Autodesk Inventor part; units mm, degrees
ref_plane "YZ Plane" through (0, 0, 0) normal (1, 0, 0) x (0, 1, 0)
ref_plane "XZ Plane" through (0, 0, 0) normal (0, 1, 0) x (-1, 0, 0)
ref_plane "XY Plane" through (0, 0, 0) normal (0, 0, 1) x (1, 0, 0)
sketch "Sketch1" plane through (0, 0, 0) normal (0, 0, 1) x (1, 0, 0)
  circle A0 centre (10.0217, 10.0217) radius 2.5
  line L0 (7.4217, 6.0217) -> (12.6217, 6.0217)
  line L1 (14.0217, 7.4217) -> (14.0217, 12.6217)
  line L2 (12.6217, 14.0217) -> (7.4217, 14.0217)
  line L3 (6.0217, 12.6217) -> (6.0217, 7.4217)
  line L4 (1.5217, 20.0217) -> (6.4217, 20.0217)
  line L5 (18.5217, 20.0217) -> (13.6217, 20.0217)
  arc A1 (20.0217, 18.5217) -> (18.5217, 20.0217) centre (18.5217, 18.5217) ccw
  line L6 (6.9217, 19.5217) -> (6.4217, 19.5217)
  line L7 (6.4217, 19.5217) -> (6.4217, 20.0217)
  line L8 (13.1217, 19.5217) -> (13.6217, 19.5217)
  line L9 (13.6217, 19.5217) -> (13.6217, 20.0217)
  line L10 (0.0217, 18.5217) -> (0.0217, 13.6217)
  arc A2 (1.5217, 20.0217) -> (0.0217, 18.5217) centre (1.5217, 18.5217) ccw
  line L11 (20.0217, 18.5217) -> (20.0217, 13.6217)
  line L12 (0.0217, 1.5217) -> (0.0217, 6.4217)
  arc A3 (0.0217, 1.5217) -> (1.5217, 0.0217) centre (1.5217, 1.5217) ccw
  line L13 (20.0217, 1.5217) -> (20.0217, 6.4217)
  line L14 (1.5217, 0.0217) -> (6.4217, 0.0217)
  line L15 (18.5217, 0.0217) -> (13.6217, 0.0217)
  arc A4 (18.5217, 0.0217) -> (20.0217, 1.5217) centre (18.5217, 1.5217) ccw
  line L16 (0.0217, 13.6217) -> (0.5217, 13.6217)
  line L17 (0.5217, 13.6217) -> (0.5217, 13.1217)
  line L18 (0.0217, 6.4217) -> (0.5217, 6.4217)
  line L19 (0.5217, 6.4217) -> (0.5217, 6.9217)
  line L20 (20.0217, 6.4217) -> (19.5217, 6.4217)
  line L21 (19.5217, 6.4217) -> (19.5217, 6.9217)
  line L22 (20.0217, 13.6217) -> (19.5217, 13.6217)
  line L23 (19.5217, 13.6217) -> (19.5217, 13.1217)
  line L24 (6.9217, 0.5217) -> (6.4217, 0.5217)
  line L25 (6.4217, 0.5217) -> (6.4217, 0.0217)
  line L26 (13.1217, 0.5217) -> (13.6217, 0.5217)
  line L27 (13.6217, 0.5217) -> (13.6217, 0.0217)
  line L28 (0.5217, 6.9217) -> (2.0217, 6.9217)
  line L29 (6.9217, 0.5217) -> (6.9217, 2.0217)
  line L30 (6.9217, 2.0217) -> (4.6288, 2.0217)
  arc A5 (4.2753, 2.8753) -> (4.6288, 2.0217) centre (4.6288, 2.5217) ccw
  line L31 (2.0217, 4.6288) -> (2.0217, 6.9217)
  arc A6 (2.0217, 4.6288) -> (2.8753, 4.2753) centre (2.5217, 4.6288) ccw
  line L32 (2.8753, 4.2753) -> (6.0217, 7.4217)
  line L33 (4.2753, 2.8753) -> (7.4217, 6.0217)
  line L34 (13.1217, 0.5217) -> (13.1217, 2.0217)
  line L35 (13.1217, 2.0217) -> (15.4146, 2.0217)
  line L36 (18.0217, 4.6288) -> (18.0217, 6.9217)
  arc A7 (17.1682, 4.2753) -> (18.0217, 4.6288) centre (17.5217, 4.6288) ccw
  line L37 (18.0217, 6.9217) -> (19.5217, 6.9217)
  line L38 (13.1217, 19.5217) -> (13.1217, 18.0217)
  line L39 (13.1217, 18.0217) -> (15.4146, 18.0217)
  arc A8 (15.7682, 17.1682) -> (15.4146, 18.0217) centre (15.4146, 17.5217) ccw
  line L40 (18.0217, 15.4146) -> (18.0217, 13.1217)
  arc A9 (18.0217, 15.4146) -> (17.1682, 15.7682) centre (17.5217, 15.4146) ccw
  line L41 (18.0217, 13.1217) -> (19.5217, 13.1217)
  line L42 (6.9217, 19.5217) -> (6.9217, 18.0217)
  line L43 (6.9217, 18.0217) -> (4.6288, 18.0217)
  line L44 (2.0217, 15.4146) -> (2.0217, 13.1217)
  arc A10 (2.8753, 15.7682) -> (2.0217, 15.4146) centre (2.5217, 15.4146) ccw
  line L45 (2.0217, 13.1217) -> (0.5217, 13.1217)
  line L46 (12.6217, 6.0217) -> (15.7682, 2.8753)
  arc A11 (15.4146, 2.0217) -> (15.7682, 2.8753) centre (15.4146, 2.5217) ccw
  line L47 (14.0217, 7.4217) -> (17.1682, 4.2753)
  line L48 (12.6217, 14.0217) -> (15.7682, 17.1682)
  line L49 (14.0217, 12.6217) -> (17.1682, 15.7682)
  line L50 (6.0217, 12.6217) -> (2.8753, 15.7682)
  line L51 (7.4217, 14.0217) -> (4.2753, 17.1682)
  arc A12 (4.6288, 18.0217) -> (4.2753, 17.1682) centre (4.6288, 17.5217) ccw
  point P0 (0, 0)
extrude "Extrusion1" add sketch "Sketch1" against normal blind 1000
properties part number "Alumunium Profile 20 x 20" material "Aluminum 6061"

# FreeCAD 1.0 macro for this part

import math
import FreeCAD as App
import Part
import Sketcher

V = App.Vector
Q = App.Units.Quantity

doc = App.newDocument("Part")
params = doc.addObject("Spreadsheet::Sheet", "Params")
for row, (alias, value) in enumerate([
    ("sketch1_diameter", "5 mm"),
    ("sketch1_radius", "0.5 mm"),
    ("sketch1_radius2", "1.5 mm"),
    ("sketch1_width", "5.2 mm"),
    ("sketch1_width2", "0.5 mm"),
    ("pad1_length", "1000 mm"),
], start=1):
    params.set(f"A{row}", alias)
    params.set(f"B{row}", "=" + value)
    params.setAlias(f"B{row}", alias)

body = doc.addObject("PartDesign::Body", "Body")

# Sketch on XY plane
sketch1 = doc.addObject("Sketcher::SketchObject", "Sketch")
body.addObject(sketch1)
sketch1.AttachmentSupport = (doc.XY_Plane, [""])
sketch1.MapMode = "FlatFace"
sketch1.addGeometry([
    Part.LineSegment(V(4.28, 2.88, 0), V(7.42, 6.02, 0)),  # 0
    Part.LineSegment(V(7.42, 6.02, 0), V(12.62, 6.02, 0)),  # 1
    Part.LineSegment(V(12.62, 6.02, 0), V(15.77, 2.88, 0)),  # 2
    Part.ArcOfCircle(Part.Circle(V(15.41, 2.52, 0), V(0, 0, 1), 0.5), math.radians(-90), math.radians(45)),  # 3
    Part.LineSegment(V(15.41, 2.02, 0), V(13.12, 2.02, 0)),  # 4
    Part.LineSegment(V(13.12, 2.02, 0), V(13.12, 0.52, 0)),  # 5
    Part.LineSegment(V(13.12, 0.52, 0), V(13.62, 0.52, 0)),  # 6
    Part.LineSegment(V(13.62, 0.52, 0), V(13.62, 0.02, 0)),  # 7
    Part.LineSegment(V(13.62, 0.02, 0), V(18.52, 0.02, 0)),  # 8
    Part.ArcOfCircle(Part.Circle(V(18.52, 1.52, 0), V(0, 0, 1), 1.5), math.radians(-90), math.radians(0)),  # 9
    Part.LineSegment(V(20.02, 1.52, 0), V(20.02, 6.42, 0)),  # 10
    Part.LineSegment(V(20.02, 6.42, 0), V(19.52, 6.42, 0)),  # 11
    Part.LineSegment(V(19.52, 6.42, 0), V(19.52, 6.92, 0)),  # 12
    Part.LineSegment(V(19.52, 6.92, 0), V(18.02, 6.92, 0)),  # 13
    Part.LineSegment(V(18.02, 6.92, 0), V(18.02, 4.63, 0)),  # 14
    Part.ArcOfCircle(Part.Circle(V(17.52, 4.63, 0), V(0, 0, 1), 0.5), math.radians(-135), math.radians(0)),  # 15
    Part.LineSegment(V(17.17, 4.28, 0), V(14.02, 7.42, 0)),  # 16
    Part.LineSegment(V(14.02, 7.42, 0), V(14.02, 12.62, 0)),  # 17
    Part.LineSegment(V(14.02, 12.62, 0), V(17.17, 15.77, 0)),  # 18
    Part.ArcOfCircle(Part.Circle(V(17.52, 15.41, 0), V(0, 0, 1), 0.5), math.radians(0), math.radians(135)),  # 19
    Part.LineSegment(V(18.02, 15.41, 0), V(18.02, 13.12, 0)),  # 20
    Part.LineSegment(V(18.02, 13.12, 0), V(19.52, 13.12, 0)),  # 21
    Part.LineSegment(V(19.52, 13.12, 0), V(19.52, 13.62, 0)),  # 22
    Part.LineSegment(V(19.52, 13.62, 0), V(20.02, 13.62, 0)),  # 23
    Part.LineSegment(V(20.02, 13.62, 0), V(20.02, 18.52, 0)),  # 24
    Part.ArcOfCircle(Part.Circle(V(18.52, 18.52, 0), V(0, 0, 1), 1.5), math.radians(0), math.radians(90)),  # 25
    Part.LineSegment(V(18.52, 20.02, 0), V(13.62, 20.02, 0)),  # 26
    Part.LineSegment(V(13.62, 20.02, 0), V(13.62, 19.52, 0)),  # 27
    Part.LineSegment(V(13.62, 19.52, 0), V(13.12, 19.52, 0)),  # 28
    Part.LineSegment(V(13.12, 19.52, 0), V(13.12, 18.02, 0)),  # 29
    Part.LineSegment(V(13.12, 18.02, 0), V(15.41, 18.02, 0)),  # 30
    Part.ArcOfCircle(Part.Circle(V(15.41, 17.52, 0), V(0, 0, 1), 0.5), math.radians(-45), math.radians(90)),  # 31
    Part.LineSegment(V(15.77, 17.17, 0), V(12.62, 14.02, 0)),  # 32
    Part.LineSegment(V(12.62, 14.02, 0), V(7.42, 14.02, 0)),  # 33
    Part.LineSegment(V(7.42, 14.02, 0), V(4.28, 17.17, 0)),  # 34
    Part.ArcOfCircle(Part.Circle(V(4.63, 17.52, 0), V(0, 0, 1), 0.5), math.radians(90), math.radians(225)),  # 35
    Part.LineSegment(V(4.63, 18.02, 0), V(6.92, 18.02, 0)),  # 36
    Part.LineSegment(V(6.92, 18.02, 0), V(6.92, 19.52, 0)),  # 37
    Part.LineSegment(V(6.92, 19.52, 0), V(6.42, 19.52, 0)),  # 38
    Part.LineSegment(V(6.42, 19.52, 0), V(6.42, 20.02, 0)),  # 39
    Part.LineSegment(V(6.42, 20.02, 0), V(1.52, 20.02, 0)),  # 40
    Part.ArcOfCircle(Part.Circle(V(1.52, 18.52, 0), V(0, 0, 1), 1.5), math.radians(90), math.radians(180)),  # 41
    Part.LineSegment(V(0.02, 18.52, 0), V(0.02, 13.62, 0)),  # 42
    Part.LineSegment(V(0.02, 13.62, 0), V(0.52, 13.62, 0)),  # 43
    Part.LineSegment(V(0.52, 13.62, 0), V(0.52, 13.12, 0)),  # 44
    Part.LineSegment(V(0.52, 13.12, 0), V(2.02, 13.12, 0)),  # 45
    Part.LineSegment(V(2.02, 13.12, 0), V(2.02, 15.41, 0)),  # 46
    Part.ArcOfCircle(Part.Circle(V(2.52, 15.41, 0), V(0, 0, 1), 0.5), math.radians(45), math.radians(180)),  # 47
    Part.LineSegment(V(2.88, 15.77, 0), V(6.02, 12.62, 0)),  # 48
    Part.LineSegment(V(6.02, 12.62, 0), V(6.02, 7.42, 0)),  # 49
    Part.LineSegment(V(6.02, 7.42, 0), V(2.88, 4.28, 0)),  # 50
    Part.ArcOfCircle(Part.Circle(V(2.52, 4.63, 0), V(0, 0, 1), 0.5), math.radians(180), math.radians(315)),  # 51
    Part.LineSegment(V(2.02, 4.63, 0), V(2.02, 6.92, 0)),  # 52
    Part.LineSegment(V(2.02, 6.92, 0), V(0.52, 6.92, 0)),  # 53
    Part.LineSegment(V(0.52, 6.92, 0), V(0.52, 6.42, 0)),  # 54
    Part.LineSegment(V(0.52, 6.42, 0), V(0.02, 6.42, 0)),  # 55
    Part.LineSegment(V(0.02, 6.42, 0), V(0.02, 1.52, 0)),  # 56
    Part.ArcOfCircle(Part.Circle(V(1.52, 1.52, 0), V(0, 0, 1), 1.5), math.radians(180), math.radians(270)),  # 57
    Part.LineSegment(V(1.52, 0.02, 0), V(6.42, 0.02, 0)),  # 58
    Part.LineSegment(V(6.42, 0.02, 0), V(6.42, 0.52, 0)),  # 59
    Part.LineSegment(V(6.42, 0.52, 0), V(6.92, 0.52, 0)),  # 60
    Part.LineSegment(V(6.92, 0.52, 0), V(6.92, 2.02, 0)),  # 61
    Part.LineSegment(V(6.92, 2.02, 0), V(4.63, 2.02, 0)),  # 62
    Part.ArcOfCircle(Part.Circle(V(4.63, 2.52, 0), V(0, 0, 1), 0.5), math.radians(135), math.radians(270)),  # 63
    Part.Circle(V(10.02, 10.02, 0), V(0, 0, 1), 2.5),  # 64
], False)
sketch1.addConstraint([
    Sketcher.Constraint("Coincident", 0, 2, 1, 1),
    Sketcher.Constraint("Coincident", 1, 2, 2, 1),
    Sketcher.Constraint("Tangent", 2, 2, 3, 2),
    Sketcher.Constraint("Tangent", 3, 1, 4, 1),
    Sketcher.Constraint("Coincident", 4, 2, 5, 1),
    Sketcher.Constraint("Coincident", 5, 2, 6, 1),
    Sketcher.Constraint("Coincident", 6, 2, 7, 1),
    Sketcher.Constraint("Coincident", 7, 2, 8, 1),
    Sketcher.Constraint("Tangent", 8, 2, 9, 1),
    Sketcher.Constraint("Tangent", 9, 2, 10, 1),
    Sketcher.Constraint("Coincident", 10, 2, 11, 1),
    Sketcher.Constraint("Coincident", 11, 2, 12, 1),
    Sketcher.Constraint("Coincident", 12, 2, 13, 1),
    Sketcher.Constraint("Coincident", 13, 2, 14, 1),
    Sketcher.Constraint("Tangent", 14, 2, 15, 2),
    Sketcher.Constraint("Tangent", 15, 1, 16, 1),
    Sketcher.Constraint("Coincident", 16, 2, 17, 1),
    Sketcher.Constraint("Coincident", 17, 2, 18, 1),
    Sketcher.Constraint("Tangent", 18, 2, 19, 2),
    Sketcher.Constraint("Tangent", 19, 1, 20, 1),
    Sketcher.Constraint("Coincident", 20, 2, 21, 1),
    Sketcher.Constraint("Coincident", 21, 2, 22, 1),
    Sketcher.Constraint("Coincident", 22, 2, 23, 1),
    Sketcher.Constraint("Coincident", 23, 2, 24, 1),
    Sketcher.Constraint("Tangent", 24, 2, 25, 1),
    Sketcher.Constraint("Tangent", 25, 2, 26, 1),
    Sketcher.Constraint("Coincident", 26, 2, 27, 1),
    Sketcher.Constraint("Coincident", 27, 2, 28, 1),
    Sketcher.Constraint("Coincident", 28, 2, 29, 1),
    Sketcher.Constraint("Coincident", 29, 2, 30, 1),
    Sketcher.Constraint("Tangent", 30, 2, 31, 2),
    Sketcher.Constraint("Tangent", 31, 1, 32, 1),
    Sketcher.Constraint("Coincident", 32, 2, 33, 1),
    Sketcher.Constraint("Coincident", 33, 2, 34, 1),
    Sketcher.Constraint("Tangent", 34, 2, 35, 2),
    Sketcher.Constraint("Tangent", 35, 1, 36, 1),
    Sketcher.Constraint("Coincident", 36, 2, 37, 1),
    Sketcher.Constraint("Coincident", 37, 2, 38, 1),
    Sketcher.Constraint("Coincident", 38, 2, 39, 1),
    Sketcher.Constraint("Coincident", 39, 2, 40, 1),
    Sketcher.Constraint("Tangent", 40, 2, 41, 1),
    Sketcher.Constraint("Tangent", 41, 2, 42, 1),
    Sketcher.Constraint("Coincident", 42, 2, 43, 1),
    Sketcher.Constraint("Coincident", 43, 2, 44, 1),
    Sketcher.Constraint("Coincident", 44, 2, 45, 1),
    Sketcher.Constraint("Coincident", 45, 2, 46, 1),
    Sketcher.Constraint("Tangent", 46, 2, 47, 2),
    Sketcher.Constraint("Tangent", 47, 1, 48, 1),
    Sketcher.Constraint("Coincident", 48, 2, 49, 1),
    Sketcher.Constraint("Coincident", 49, 2, 50, 1),
    Sketcher.Constraint("Tangent", 50, 2, 51, 2),
    Sketcher.Constraint("Tangent", 51, 1, 52, 1),
    Sketcher.Constraint("Coincident", 52, 2, 53, 1),
    Sketcher.Constraint("Coincident", 53, 2, 54, 1),
    Sketcher.Constraint("Coincident", 54, 2, 55, 1),
    Sketcher.Constraint("Coincident", 55, 2, 56, 1),
    Sketcher.Constraint("Tangent", 56, 2, 57, 1),
    Sketcher.Constraint("Tangent", 57, 2, 58, 1),
    Sketcher.Constraint("Coincident", 58, 2, 59, 1),
    Sketcher.Constraint("Coincident", 59, 2, 60, 1),
    Sketcher.Constraint("Coincident", 60, 2, 61, 1),
    Sketcher.Constraint("Coincident", 61, 2, 62, 1),
    Sketcher.Constraint("Tangent", 62, 2, 63, 2),
    Sketcher.Constraint("Tangent", 63, 1, 0, 1),
    Sketcher.Constraint("Horizontal", 1),
    Sketcher.Constraint("Horizontal", 4),
    Sketcher.Constraint("Vertical", 5),
    Sketcher.Constraint("Horizontal", 6),
    Sketcher.Constraint("Vertical", 7),
    Sketcher.Constraint("Horizontal", 8),
    Sketcher.Constraint("Vertical", 10),
    Sketcher.Constraint("Horizontal", 11),
    Sketcher.Constraint("Vertical", 12),
    Sketcher.Constraint("Horizontal", 13),
    Sketcher.Constraint("Vertical", 14),
    Sketcher.Constraint("Vertical", 17),
    Sketcher.Constraint("Vertical", 20),
    Sketcher.Constraint("Horizontal", 21),
    Sketcher.Constraint("Vertical", 22),
    Sketcher.Constraint("Horizontal", 23),
    Sketcher.Constraint("Vertical", 24),
    Sketcher.Constraint("Horizontal", 26),
    Sketcher.Constraint("Vertical", 27),
    Sketcher.Constraint("Horizontal", 28),
    Sketcher.Constraint("Vertical", 29),
    Sketcher.Constraint("Horizontal", 30),
    Sketcher.Constraint("Horizontal", 33),
    Sketcher.Constraint("Horizontal", 36),
    Sketcher.Constraint("Vertical", 37),
    Sketcher.Constraint("Horizontal", 38),
    Sketcher.Constraint("Vertical", 39),
    Sketcher.Constraint("Horizontal", 40),
    Sketcher.Constraint("Vertical", 42),
    Sketcher.Constraint("Horizontal", 43),
    Sketcher.Constraint("Vertical", 44),
    Sketcher.Constraint("Horizontal", 45),
    Sketcher.Constraint("Vertical", 46),
    Sketcher.Constraint("Vertical", 49),
    Sketcher.Constraint("Vertical", 52),
    Sketcher.Constraint("Horizontal", 53),
    Sketcher.Constraint("Vertical", 54),
    Sketcher.Constraint("Horizontal", 55),
    Sketcher.Constraint("Vertical", 56),
    Sketcher.Constraint("Horizontal", 58),
    Sketcher.Constraint("Vertical", 59),
    Sketcher.Constraint("Horizontal", 60),
    Sketcher.Constraint("Vertical", 61),
    Sketcher.Constraint("Horizontal", 62),
    Sketcher.Constraint("Equal", 3, 15),
    Sketcher.Constraint("Equal", 15, 19),
    Sketcher.Constraint("Equal", 9, 25),
    Sketcher.Constraint("Equal", 19, 31),
    Sketcher.Constraint("Equal", 31, 35),
    Sketcher.Constraint("Equal", 25, 41),
    Sketcher.Constraint("Equal", 35, 47),
    Sketcher.Constraint("Equal", 47, 51),
    Sketcher.Constraint("Equal", 41, 57),
    Sketcher.Constraint("Equal", 51, 63),
    Sketcher.Constraint("Perpendicular", 0, 2),
    Sketcher.Constraint("Parallel", 2, 16),
    Sketcher.Constraint("Perpendicular", 16, 18),
    Sketcher.Constraint("Parallel", 18, 32),
    Sketcher.Constraint("Perpendicular", 32, 34),
    Sketcher.Constraint("Parallel", 34, 48),
    Sketcher.Constraint("Perpendicular", 48, 50),
    Sketcher.Constraint("Horizontal", 31, 3, 35, 3),
    Sketcher.Constraint("Horizontal", 25, 3, 41, 3),
    Sketcher.Constraint("Horizontal", 19, 3, 47, 3),
    Sketcher.Constraint("Horizontal", 15, 3, 51, 3),
    Sketcher.Constraint("Horizontal", 9, 3, 57, 3),
    Sketcher.Constraint("Horizontal", 3, 3, 63, 3),
    Sketcher.Constraint("Horizontal", 31, 1, 34, 2),
    Sketcher.Constraint("Horizontal", 28, 2, 37, 2),
    Sketcher.Constraint("Horizontal", 23, 2, 42, 2),
    Sketcher.Constraint("Horizontal", 21, 2, 44, 2),
    Sketcher.Constraint("Horizontal", 17, 2, 48, 2),
    Sketcher.Constraint("Horizontal", 16, 2, 49, 2),
    Sketcher.Constraint("Horizontal", 13, 2, 52, 2),
    Sketcher.Constraint("Horizontal", 11, 2, 54, 2),
    Sketcher.Constraint("Horizontal", 6, 2, 59, 2),
    Sketcher.Constraint("Vertical", 15, 3, 19, 3),
    Sketcher.Constraint("Vertical", 9, 3, 25, 3),
    Sketcher.Constraint("Vertical", 3, 3, 31, 3),
    Sketcher.Constraint("Vertical", 41, 3, 57, 3),
    Sketcher.Constraint("Vertical", 35, 3, 63, 3),
    Sketcher.Constraint("Vertical", 12, 2, 21, 2),
    Sketcher.Constraint("Vertical", 7, 2, 26, 2),
    Sketcher.Constraint("Vertical", 5, 2, 28, 2),
    Sketcher.Constraint("Vertical", 1, 2, 32, 2),
    Sketcher.Constraint("Vertical", 44, 2, 53, 2),
    Sketcher.Constraint("Vertical", 39, 2, 58, 2),
    Sketcher.Constraint("Vertical", 37, 2, 60, 2),
    Sketcher.Constraint("Equal", 6, 11),
    Sketcher.Constraint("Equal", 30, 36),
    Sketcher.Constraint("Equal", 28, 38),
    Sketcher.Constraint("Equal", 26, 40),
    Sketcher.Constraint("Equal", 38, 43),
    Sketcher.Constraint("Equal", 21, 45),
    Sketcher.Constraint("Equal", 53, 5),
    Sketcher.Constraint("Equal", 60, 7),
    Sketcher.Constraint("Equal", 58, 10),
    Sketcher.Constraint("Equal", 7, 12),
    Sketcher.Constraint("Equal", 62, 14),
    Sketcher.Constraint("Equal", 33, 17),
    Sketcher.Constraint("Equal", 14, 20),
    Sketcher.Constraint("Equal", 12, 22),
    Sketcher.Constraint("Equal", 10, 24),
    Sketcher.Constraint("Equal", 22, 27),
    Sketcher.Constraint("Equal", 5, 29),
    Sketcher.Constraint("Equal", 2, 16),
    Sketcher.Constraint("Diameter", 64, Q("5 mm")),
    Sketcher.Constraint("Radius", 3, Q("0.5 mm")),
    Sketcher.Constraint("Radius", 9, Q("1.5 mm")),
    Sketcher.Constraint("DistanceX", 1, 1, 1, 2, Q("5.2 mm")),
    Sketcher.Constraint("DistanceX", 6, 1, 6, 2, Q("0.5 mm")),
    Sketcher.Constraint("DistanceX", 8, 1, 8, 2, Q("4.9 mm")),
    Sketcher.Constraint("DistanceX", 13, 2, 13, 1, Q("1.5 mm")),
    Sketcher.Constraint("DistanceX", 4, 2, 4, 1, Q("2.293 mm")),
    Sketcher.Constraint("Distance", 0, Q("4.4497 mm")),
    Sketcher.Constraint("DistanceX", -1, 1, 3, 3, Q("15.4146 mm")),
    Sketcher.Constraint("DistanceY", -1, 1, 3, 3, Q("2.5217 mm")),
    Sketcher.Constraint("DistanceX", -1, 1, 64, 3, Q("10.0217 mm")),
    Sketcher.Constraint("DistanceY", -1, 1, 64, 3, Q("10.0217 mm")),
])
sketch1.setExpression("Constraints[170]", "Params.sketch1_diameter")
sketch1.setExpression("Constraints[171]", "Params.sketch1_radius")
sketch1.setExpression("Constraints[172]", "Params.sketch1_radius2")
sketch1.setExpression("Constraints[173]", "Params.sketch1_width")
sketch1.setExpression("Constraints[174]", "Params.sketch1_width2")
pad1 = doc.addObject("PartDesign::Pad", "Pad")
body.addObject(pad1)
pad1.Profile = sketch1
pad1.setExpression("Length", "Params.pad1_length")
pad1.Reversed = True

doc.recompute()
